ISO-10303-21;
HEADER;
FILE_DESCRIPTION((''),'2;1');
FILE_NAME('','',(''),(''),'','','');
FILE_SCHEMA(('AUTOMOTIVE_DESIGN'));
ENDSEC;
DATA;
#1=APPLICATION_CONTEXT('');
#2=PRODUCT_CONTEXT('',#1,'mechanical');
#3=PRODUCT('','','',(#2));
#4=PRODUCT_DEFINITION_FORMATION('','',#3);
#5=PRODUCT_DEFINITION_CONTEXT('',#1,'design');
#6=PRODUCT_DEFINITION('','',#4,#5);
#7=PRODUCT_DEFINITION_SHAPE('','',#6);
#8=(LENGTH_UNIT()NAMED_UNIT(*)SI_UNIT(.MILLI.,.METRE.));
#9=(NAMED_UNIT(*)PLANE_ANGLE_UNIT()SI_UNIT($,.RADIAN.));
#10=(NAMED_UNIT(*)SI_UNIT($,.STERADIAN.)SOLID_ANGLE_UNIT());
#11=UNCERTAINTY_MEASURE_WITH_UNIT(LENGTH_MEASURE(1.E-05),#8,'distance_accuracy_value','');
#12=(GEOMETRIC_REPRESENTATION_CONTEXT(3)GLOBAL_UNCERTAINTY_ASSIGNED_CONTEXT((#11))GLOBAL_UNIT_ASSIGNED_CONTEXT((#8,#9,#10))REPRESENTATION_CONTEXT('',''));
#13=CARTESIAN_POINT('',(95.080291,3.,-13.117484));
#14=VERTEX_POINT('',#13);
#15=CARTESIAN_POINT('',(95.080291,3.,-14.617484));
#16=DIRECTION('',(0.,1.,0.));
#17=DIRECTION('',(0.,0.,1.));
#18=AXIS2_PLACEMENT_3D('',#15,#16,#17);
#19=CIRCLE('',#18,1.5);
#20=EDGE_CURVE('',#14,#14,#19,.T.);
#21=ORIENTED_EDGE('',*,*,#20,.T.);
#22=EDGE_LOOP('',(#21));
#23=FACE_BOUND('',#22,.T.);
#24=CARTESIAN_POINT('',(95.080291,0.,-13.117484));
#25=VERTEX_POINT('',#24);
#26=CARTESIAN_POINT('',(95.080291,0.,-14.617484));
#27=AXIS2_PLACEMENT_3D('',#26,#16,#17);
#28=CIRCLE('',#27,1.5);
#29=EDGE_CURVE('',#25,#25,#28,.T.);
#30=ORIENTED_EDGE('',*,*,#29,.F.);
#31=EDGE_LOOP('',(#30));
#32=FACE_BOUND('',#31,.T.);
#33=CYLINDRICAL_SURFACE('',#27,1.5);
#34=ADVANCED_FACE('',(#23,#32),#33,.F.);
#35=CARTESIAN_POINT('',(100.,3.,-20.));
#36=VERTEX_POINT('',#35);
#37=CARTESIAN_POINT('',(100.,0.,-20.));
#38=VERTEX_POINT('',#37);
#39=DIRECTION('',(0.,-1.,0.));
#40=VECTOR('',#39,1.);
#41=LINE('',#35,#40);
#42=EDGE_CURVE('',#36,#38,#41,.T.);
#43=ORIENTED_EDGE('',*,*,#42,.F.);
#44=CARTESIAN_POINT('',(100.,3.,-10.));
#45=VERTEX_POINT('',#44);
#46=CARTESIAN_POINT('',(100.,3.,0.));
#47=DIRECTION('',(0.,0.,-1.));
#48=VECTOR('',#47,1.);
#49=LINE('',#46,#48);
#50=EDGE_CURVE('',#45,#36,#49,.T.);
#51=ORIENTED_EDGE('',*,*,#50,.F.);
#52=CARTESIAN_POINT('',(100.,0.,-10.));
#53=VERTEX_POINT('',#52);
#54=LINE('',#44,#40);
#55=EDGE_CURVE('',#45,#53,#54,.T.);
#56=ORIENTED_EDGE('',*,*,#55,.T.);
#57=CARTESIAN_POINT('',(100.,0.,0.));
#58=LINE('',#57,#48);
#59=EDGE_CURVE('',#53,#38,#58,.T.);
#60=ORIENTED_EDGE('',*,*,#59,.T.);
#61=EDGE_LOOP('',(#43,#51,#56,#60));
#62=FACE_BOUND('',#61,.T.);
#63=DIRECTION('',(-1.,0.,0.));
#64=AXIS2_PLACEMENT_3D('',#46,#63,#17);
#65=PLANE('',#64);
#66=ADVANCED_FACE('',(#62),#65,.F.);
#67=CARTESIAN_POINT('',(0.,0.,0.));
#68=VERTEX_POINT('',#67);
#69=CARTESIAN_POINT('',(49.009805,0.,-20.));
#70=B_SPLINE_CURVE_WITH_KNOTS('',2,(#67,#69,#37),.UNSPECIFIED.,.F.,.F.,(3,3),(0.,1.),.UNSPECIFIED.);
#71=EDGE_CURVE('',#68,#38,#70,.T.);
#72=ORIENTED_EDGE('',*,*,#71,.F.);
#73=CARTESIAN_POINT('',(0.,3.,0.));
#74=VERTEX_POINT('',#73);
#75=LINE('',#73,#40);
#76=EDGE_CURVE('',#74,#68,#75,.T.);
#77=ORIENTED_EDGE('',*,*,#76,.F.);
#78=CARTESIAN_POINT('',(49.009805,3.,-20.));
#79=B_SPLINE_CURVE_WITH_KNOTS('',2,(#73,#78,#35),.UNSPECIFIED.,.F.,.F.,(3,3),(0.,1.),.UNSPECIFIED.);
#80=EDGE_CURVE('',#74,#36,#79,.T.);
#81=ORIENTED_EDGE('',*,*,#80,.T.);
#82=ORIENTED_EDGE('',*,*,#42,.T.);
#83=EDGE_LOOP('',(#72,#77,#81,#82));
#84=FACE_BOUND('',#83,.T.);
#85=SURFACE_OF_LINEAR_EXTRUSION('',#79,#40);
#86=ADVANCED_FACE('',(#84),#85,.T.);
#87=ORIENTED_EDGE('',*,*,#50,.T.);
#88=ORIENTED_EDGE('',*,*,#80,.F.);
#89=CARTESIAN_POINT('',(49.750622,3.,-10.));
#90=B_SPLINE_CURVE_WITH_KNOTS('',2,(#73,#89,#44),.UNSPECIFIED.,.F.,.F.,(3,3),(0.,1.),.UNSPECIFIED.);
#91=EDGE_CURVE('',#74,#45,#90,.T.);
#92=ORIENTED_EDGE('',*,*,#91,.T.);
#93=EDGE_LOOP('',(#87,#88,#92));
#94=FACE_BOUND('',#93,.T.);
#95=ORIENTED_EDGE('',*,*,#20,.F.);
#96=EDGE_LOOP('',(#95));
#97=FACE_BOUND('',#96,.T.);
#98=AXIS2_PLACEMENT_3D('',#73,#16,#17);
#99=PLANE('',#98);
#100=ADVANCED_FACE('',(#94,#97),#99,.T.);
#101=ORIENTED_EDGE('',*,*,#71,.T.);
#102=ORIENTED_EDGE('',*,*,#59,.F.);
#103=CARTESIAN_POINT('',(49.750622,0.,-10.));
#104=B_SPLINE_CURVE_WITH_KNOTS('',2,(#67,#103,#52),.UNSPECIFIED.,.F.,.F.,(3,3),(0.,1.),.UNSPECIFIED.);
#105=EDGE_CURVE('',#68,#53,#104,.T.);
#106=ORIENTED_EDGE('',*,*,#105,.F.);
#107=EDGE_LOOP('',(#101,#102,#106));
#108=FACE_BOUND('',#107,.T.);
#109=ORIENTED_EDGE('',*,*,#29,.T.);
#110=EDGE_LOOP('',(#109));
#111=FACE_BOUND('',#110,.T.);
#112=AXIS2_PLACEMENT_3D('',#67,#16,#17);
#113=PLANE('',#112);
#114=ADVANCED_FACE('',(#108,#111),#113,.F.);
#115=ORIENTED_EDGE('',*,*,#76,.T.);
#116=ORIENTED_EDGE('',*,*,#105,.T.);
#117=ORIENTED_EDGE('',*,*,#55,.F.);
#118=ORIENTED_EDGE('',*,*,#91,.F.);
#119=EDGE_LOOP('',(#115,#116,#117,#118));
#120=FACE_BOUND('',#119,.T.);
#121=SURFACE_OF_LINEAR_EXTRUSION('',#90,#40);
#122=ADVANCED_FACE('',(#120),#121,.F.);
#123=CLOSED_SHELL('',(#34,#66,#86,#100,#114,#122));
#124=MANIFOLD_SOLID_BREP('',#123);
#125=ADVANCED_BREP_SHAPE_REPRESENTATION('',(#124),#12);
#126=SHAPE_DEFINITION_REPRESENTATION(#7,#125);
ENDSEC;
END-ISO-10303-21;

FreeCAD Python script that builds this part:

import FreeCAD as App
import Part
import Sketcher
from FreeCAD import Vector
Q = App.Units.Quantity

doc = App.newDocument("Part")
params = doc.addObject("Spreadsheet::Sheet", "Params")
for row, (alias, value) in enumerate([
    ("pad1_length", "3 mm"),
    ("sketch2_diameter", "3 mm"),
    ("pocket1_length", "3 mm"),
], start=1):
    params.set(f"A{row}", alias)
    params.set(f"B{row}", "=" + value)
    params.setAlias(f"B{row}", alias)

body = doc.addObject("PartDesign::Body", "Body")

# Sketch on XZ plane
sketch1 = body.newObject("Sketcher::SketchObject", "Sketch")
sketch1.AttachmentSupport = (doc.getObject("XZ_Plane"), [""])
sketch1.MapMode = "FlatFace"
sketch1.addGeometry([
    Part.BSplineCurve([Vector(0, 0, 0), Vector(49.009805, -20, 0), Vector(100, -20, 0)], [3, 3], [0, 1], False, 2, [1, 1, 1], False),
    Part.BSplineCurve([Vector(0, 0, 0), Vector(49.750622, -10, 0), Vector(100, -10, 0)], [3, 3], [0, 1], False, 2, [1, 1, 1], False),
    Part.LineSegment(Vector(100, -10, 0), Vector(100, -20, 0)),
], False)
sketch1.addConstraint([
    Sketcher.Constraint("Block", 0),
    Sketcher.Constraint("Block", 1),
    Sketcher.Constraint("Coincident", 1, 2, 2, 1),
    Sketcher.Constraint("Coincident", 2, 2, 0, 2),
])
pad1 = body.newObject("PartDesign::Pad", "Pad")
pad1.Profile = sketch1
pad1.setExpression("Length", "Params.pad1_length")
pad1.Reversed = True

# Sketch on XZ plane
sketch2 = body.newObject("Sketcher::SketchObject", "Sketch001")
sketch2.AttachmentSupport = (doc.getObject("XZ_Plane"), [""])
sketch2.MapMode = "FlatFace"
sketch2.AttachmentOffset = App.Placement(Vector(0, 0, -3), App.Rotation())
sketch2.addGeometry(Part.Circle(Vector(95.080291, -14.617484, 0), Vector(0, 0, 1), 1.5), False)
sketch2.addConstraint([
    Sketcher.Constraint("Diameter", 0, Q("3 mm")),
    Sketcher.Constraint("DistanceX", -1, 1, 0, 3, Q("95.080291 mm")),
    Sketcher.Constraint("DistanceY", 0, 3, -1, 1, Q("14.617484 mm")),
])
sketch2.setExpression("Constraints[0]", "Params.sketch2_diameter")
pocket1 = body.newObject("PartDesign::Pocket", "Pocket")
pocket1.Profile = sketch2
pocket1.setExpression("Length", "Params.pocket1_length")
pocket1.Reversed = True

doc.recompute()
